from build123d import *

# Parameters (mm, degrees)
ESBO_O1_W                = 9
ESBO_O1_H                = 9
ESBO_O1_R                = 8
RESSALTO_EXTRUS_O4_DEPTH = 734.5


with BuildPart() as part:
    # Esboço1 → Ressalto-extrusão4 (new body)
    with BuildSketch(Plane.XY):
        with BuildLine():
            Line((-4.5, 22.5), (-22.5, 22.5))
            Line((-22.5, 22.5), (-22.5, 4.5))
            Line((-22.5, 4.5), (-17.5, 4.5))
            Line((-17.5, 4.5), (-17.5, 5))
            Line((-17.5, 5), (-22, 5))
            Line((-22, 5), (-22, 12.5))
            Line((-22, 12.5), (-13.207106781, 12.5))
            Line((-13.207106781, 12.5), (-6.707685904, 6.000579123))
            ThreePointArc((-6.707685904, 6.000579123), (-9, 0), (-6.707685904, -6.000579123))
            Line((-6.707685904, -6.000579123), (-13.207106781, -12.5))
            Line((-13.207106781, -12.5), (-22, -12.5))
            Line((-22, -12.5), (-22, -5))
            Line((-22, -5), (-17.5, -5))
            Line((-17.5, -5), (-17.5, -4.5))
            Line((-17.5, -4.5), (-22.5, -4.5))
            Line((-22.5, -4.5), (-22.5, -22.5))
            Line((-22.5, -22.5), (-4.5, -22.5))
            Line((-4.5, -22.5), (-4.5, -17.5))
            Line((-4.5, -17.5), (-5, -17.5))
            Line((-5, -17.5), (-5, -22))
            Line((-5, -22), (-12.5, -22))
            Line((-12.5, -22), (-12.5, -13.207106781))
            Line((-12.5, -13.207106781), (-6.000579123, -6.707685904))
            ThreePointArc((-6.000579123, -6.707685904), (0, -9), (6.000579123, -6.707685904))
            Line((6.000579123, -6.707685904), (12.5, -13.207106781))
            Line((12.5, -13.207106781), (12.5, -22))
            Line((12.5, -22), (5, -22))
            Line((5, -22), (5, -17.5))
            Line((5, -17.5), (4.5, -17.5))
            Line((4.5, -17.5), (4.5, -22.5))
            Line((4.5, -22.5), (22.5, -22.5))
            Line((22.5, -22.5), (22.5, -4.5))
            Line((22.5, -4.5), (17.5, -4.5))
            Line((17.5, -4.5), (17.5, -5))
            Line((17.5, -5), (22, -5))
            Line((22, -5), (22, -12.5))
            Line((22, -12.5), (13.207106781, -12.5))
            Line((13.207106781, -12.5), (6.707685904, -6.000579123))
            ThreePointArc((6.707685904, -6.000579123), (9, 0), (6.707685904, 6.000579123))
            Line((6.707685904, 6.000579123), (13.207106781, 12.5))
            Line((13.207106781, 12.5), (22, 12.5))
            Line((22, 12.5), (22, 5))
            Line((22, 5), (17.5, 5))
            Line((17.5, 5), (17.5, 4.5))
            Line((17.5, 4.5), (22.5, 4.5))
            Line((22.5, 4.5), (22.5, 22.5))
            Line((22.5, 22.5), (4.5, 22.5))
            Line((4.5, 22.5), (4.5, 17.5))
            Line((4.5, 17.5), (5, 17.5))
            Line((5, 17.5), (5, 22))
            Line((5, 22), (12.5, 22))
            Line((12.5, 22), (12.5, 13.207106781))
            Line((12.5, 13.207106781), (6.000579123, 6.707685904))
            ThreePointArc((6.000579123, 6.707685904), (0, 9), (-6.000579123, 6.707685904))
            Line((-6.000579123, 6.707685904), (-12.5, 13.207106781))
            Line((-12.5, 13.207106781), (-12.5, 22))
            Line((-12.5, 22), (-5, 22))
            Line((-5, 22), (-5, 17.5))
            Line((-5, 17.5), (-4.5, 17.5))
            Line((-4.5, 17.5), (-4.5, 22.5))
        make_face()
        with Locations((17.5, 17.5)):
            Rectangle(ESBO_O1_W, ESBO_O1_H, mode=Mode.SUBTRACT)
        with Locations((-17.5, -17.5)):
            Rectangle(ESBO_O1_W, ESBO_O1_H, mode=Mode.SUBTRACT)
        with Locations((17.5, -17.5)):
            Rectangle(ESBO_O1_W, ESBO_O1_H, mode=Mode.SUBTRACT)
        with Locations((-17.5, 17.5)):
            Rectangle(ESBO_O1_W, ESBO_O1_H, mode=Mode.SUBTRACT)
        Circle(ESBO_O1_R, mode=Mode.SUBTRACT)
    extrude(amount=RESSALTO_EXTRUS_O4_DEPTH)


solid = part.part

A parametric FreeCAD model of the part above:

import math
import FreeCAD as App
import Part
import Sketcher

V = App.Vector
Q = App.Units.Quantity


def add_polygon(sketch, points):
    """Adds a closed chain of lines whose ends are joined by coincident constraints."""
    first, n = sketch.GeometryCount, len(points)
    for a, b in zip(points, points[1:] + points[:1]):
        sketch.addGeometry(Part.LineSegment(App.Vector(*a, 0), App.Vector(*b, 0)), False)
    for i in range(n):
        sketch.addConstraint(Sketcher.Constraint("Coincident", first + i, 2, first + (i + 1) % n, 1))

doc = App.newDocument("Part")
params = doc.addObject("Spreadsheet::Sheet", "Params")
for row, (alias, value) in enumerate([
    ("sketch1_diameter", "16 mm"),
    ("sketch1_radius", "9 mm"),
    ("sketch1_width", "18 mm"),
    ("sketch1_width2", "5 mm"),
    ("sketch1_width3", "9 mm"),
    ("pad1_length", "734.5 mm"),
], start=1):
    params.set(f"A{row}", alias)
    params.set(f"B{row}", "=" + value)
    params.setAlias(f"B{row}", alias)

body = doc.addObject("PartDesign::Body", "Body")

sketch1 = doc.addObject("Sketcher::SketchObject", "Sketch")
body.addObject(sketch1)
sketch1.AttachmentSupport = (doc.XY_Plane, [""])
sketch1.MapMode = "FlatFace"
sketch1.addGeometry(Part.LineSegment(V(-4.5, 22.5, 0), V(-22.5, 22.5, 0)), False)
sketch1.addGeometry(Part.LineSegment(V(-22.5, 22.5, 0), V(-22.5, 4.5, 0)), False)
sketch1.addGeometry(Part.LineSegment(V(-22.5, 4.5, 0), V(-17.5, 4.5, 0)), False)
sketch1.addGeometry(Part.LineSegment(V(-17.5, 4.5, 0), V(-17.5, 5, 0)), False)
sketch1.addGeometry(Part.LineSegment(V(-17.5, 5, 0), V(-22, 5, 0)), False)
sketch1.addGeometry(Part.LineSegment(V(-22, 5, 0), V(-22, 12.5, 0)), False)
sketch1.addGeometry(Part.LineSegment(V(-22, 12.5, 0), V(-13.2, 12.5, 0)), False)
sketch1.addGeometry(Part.LineSegment(V(-13.2, 12.5, 0), V(-6.7, 6, 0)), False)
sketch1.addGeometry(Part.ArcOfCircle(Part.Circle(V(0, 0, 0), V(0, 0, 1), 9), math.radians(138), math.radians(222)), False)
sketch1.addGeometry(Part.LineSegment(V(-6.7, -6, 0), V(-13.2, -12.5, 0)), False)
sketch1.addGeometry(Part.LineSegment(V(-13.2, -12.5, 0), V(-22, -12.5, 0)), False)
sketch1.addGeometry(Part.LineSegment(V(-22, -12.5, 0), V(-22, -5, 0)), False)
sketch1.addGeometry(Part.LineSegment(V(-22, -5, 0), V(-17.5, -5, 0)), False)
sketch1.addGeometry(Part.LineSegment(V(-17.5, -5, 0), V(-17.5, -4.5, 0)), False)
sketch1.addGeometry(Part.LineSegment(V(-17.5, -4.5, 0), V(-22.5, -4.5, 0)), False)
sketch1.addGeometry(Part.LineSegment(V(-22.5, -4.5, 0), V(-22.5, -22.5, 0)), False)
sketch1.addGeometry(Part.LineSegment(V(-22.5, -22.5, 0), V(-4.5, -22.5, 0)), False)
sketch1.addGeometry(Part.LineSegment(V(-4.5, -22.5, 0), V(-4.5, -17.5, 0)), False)
sketch1.addGeometry(Part.LineSegment(V(-4.5, -17.5, 0), V(-5, -17.5, 0)), False)
sketch1.addGeometry(Part.LineSegment(V(-5, -17.5, 0), V(-5, -22, 0)), False)
sketch1.addGeometry(Part.LineSegment(V(-5, -22, 0), V(-12.5, -22, 0)), False)
sketch1.addGeometry(Part.LineSegment(V(-12.5, -22, 0), V(-12.5, -13.2, 0)), False)
sketch1.addGeometry(Part.LineSegment(V(-12.5, -13.2, 0), V(-6, -6.7, 0)), False)
sketch1.addGeometry(Part.ArcOfCircle(Part.Circle(V(0, 0, 0), V(0, 0, 1), 9), math.radians(-132), math.radians(-48)), False)
sketch1.addGeometry(Part.LineSegment(V(6, -6.7, 0), V(12.5, -13.2, 0)), False)
sketch1.addGeometry(Part.LineSegment(V(12.5, -13.2, 0), V(12.5, -22, 0)), False)
sketch1.addGeometry(Part.LineSegment(V(12.5, -22, 0), V(5, -22, 0)), False)
sketch1.addGeometry(Part.LineSegment(V(5, -22, 0), V(5, -17.5, 0)), False)
sketch1.addGeometry(Part.LineSegment(V(5, -17.5, 0), V(4.5, -17.5, 0)), False)
sketch1.addGeometry(Part.LineSegment(V(4.5, -17.5, 0), V(4.5, -22.5, 0)), False)
sketch1.addGeometry(Part.LineSegment(V(4.5, -22.5, 0), V(22.5, -22.5, 0)), False)
sketch1.addGeometry(Part.LineSegment(V(22.5, -22.5, 0), V(22.5, -4.5, 0)), False)
sketch1.addGeometry(Part.LineSegment(V(22.5, -4.5, 0), V(17.5, -4.5, 0)), False)
sketch1.addGeometry(Part.LineSegment(V(17.5, -4.5, 0), V(17.5, -5, 0)), False)
sketch1.addGeometry(Part.LineSegment(V(17.5, -5, 0), V(22, -5, 0)), False)
sketch1.addGeometry(Part.LineSegment(V(22, -5, 0), V(22, -12.5, 0)), False)
sketch1.addGeometry(Part.LineSegment(V(22, -12.5, 0), V(13.2, -12.5, 0)), False)
sketch1.addGeometry(Part.LineSegment(V(13.2, -12.5, 0), V(6.7, -6, 0)), False)
sketch1.addGeometry(Part.ArcOfCircle(Part.Circle(V(0, 0, 0), V(0, 0, 1), 9), math.radians(-42), math.radians(42)), False)
sketch1.addGeometry(Part.LineSegment(V(6.7, 6, 0), V(13.2, 12.5, 0)), False)
sketch1.addGeometry(Part.LineSegment(V(13.2, 12.5, 0), V(22, 12.5, 0)), False)
sketch1.addGeometry(Part.LineSegment(V(22, 12.5, 0), V(22, 5, 0)), False)
sketch1.addGeometry(Part.LineSegment(V(22, 5, 0), V(17.5, 5, 0)), False)
sketch1.addGeometry(Part.LineSegment(V(17.5, 5, 0), V(17.5, 4.5, 0)), False)
sketch1.addGeometry(Part.LineSegment(V(17.5, 4.5, 0), V(22.5, 4.5, 0)), False)
sketch1.addGeometry(Part.LineSegment(V(22.5, 4.5, 0), V(22.5, 22.5, 0)), False)
sketch1.addGeometry(Part.LineSegment(V(22.5, 22.5, 0), V(4.5, 22.5, 0)), False)
sketch1.addGeometry(Part.LineSegment(V(4.5, 22.5, 0), V(4.5, 17.5, 0)), False)
sketch1.addGeometry(Part.LineSegment(V(4.5, 17.5, 0), V(5, 17.5, 0)), False)
sketch1.addGeometry(Part.LineSegment(V(5, 17.5, 0), V(5, 22, 0)), False)
sketch1.addGeometry(Part.LineSegment(V(5, 22, 0), V(12.5, 22, 0)), False)
sketch1.addGeometry(Part.LineSegment(V(12.5, 22, 0), V(12.5, 13.2, 0)), False)
sketch1.addGeometry(Part.LineSegment(V(12.5, 13.2, 0), V(6, 6.7, 0)), False)
sketch1.addGeometry(Part.ArcOfCircle(Part.Circle(V(0, 0, 0), V(0, 0, 1), 9), math.radians(48), math.radians(132)), False)
sketch1.addGeometry(Part.LineSegment(V(-6, 6.7, 0), V(-12.5, 13.2, 0)), False)
sketch1.addGeometry(Part.LineSegment(V(-12.5, 13.2, 0), V(-12.5, 22, 0)), False)
sketch1.addGeometry(Part.LineSegment(V(-12.5, 22, 0), V(-5, 22, 0)), False)
sketch1.addGeometry(Part.LineSegment(V(-5, 22, 0), V(-5, 17.5, 0)), False)
sketch1.addGeometry(Part.LineSegment(V(-5, 17.5, 0), V(-4.5, 17.5, 0)), False)
sketch1.addGeometry(Part.LineSegment(V(-4.5, 17.5, 0), V(-4.5, 22.5, 0)), False)
add_polygon(sketch1, [(-13, -22), (-22, -22), (-22, -13), (-13, -13)])
add_polygon(sketch1, [(22, -22), (13, -22), (13, -13), (22, -13)])
add_polygon(sketch1, [(-13, 13), (-22, 13), (-22, 22), (-13, 22)])
sketch1.addGeometry(Part.Circle(V(0, 0, 0), V(0, 0, 1), 8), False)
add_polygon(sketch1, [(22, 13), (13, 13), (13, 22), (22, 22)])
sketch1.addConstraint(Sketcher.Constraint("Coincident", 0, 2, 1, 1))
sketch1.addConstraint(Sketcher.Constraint("Coincident", 1, 2, 2, 1))
sketch1.addConstraint(Sketcher.Constraint("Coincident", 2, 2, 3, 1))
sketch1.addConstraint(Sketcher.Constraint("Coincident", 3, 2, 4, 1))
sketch1.addConstraint(Sketcher.Constraint("Coincident", 4, 2, 5, 1))
sketch1.addConstraint(Sketcher.Constraint("Coincident", 5, 2, 6, 1))
sketch1.addConstraint(Sketcher.Constraint("Coincident", 6, 2, 7, 1))
sketch1.addConstraint(Sketcher.Constraint("Coincident", 7, 2, 8, 1))
sketch1.addConstraint(Sketcher.Constraint("Coincident", 8, 2, 9, 1))
sketch1.addConstraint(Sketcher.Constraint("Coincident", 9, 2, 10, 1))
sketch1.addConstraint(Sketcher.Constraint("Coincident", 10, 2, 11, 1))
sketch1.addConstraint(Sketcher.Constraint("Coincident", 11, 2, 12, 1))
sketch1.addConstraint(Sketcher.Constraint("Coincident", 12, 2, 13, 1))
sketch1.addConstraint(Sketcher.Constraint("Coincident", 13, 2, 14, 1))
sketch1.addConstraint(Sketcher.Constraint("Coincident", 14, 2, 15, 1))
sketch1.addConstraint(Sketcher.Constraint("Coincident", 15, 2, 16, 1))
sketch1.addConstraint(Sketcher.Constraint("Coincident", 16, 2, 17, 1))
sketch1.addConstraint(Sketcher.Constraint("Coincident", 17, 2, 18, 1))
sketch1.addConstraint(Sketcher.Constraint("Coincident", 18, 2, 19, 1))
sketch1.addConstraint(Sketcher.Constraint("Coincident", 19, 2, 20, 1))
sketch1.addConstraint(Sketcher.Constraint("Coincident", 20, 2, 21, 1))
sketch1.addConstraint(Sketcher.Constraint("Coincident", 21, 2, 22, 1))
sketch1.addConstraint(Sketcher.Constraint("Coincident", 22, 2, 23, 1))
sketch1.addConstraint(Sketcher.Constraint("Coincident", 23, 2, 24, 1))
sketch1.addConstraint(Sketcher.Constraint("Coincident", 24, 2, 25, 1))
sketch1.addConstraint(Sketcher.Constraint("Coincident", 25, 2, 26, 1))
sketch1.addConstraint(Sketcher.Constraint("Coincident", 26, 2, 27, 1))
sketch1.addConstraint(Sketcher.Constraint("Coincident", 27, 2, 28, 1))
sketch1.addConstraint(Sketcher.Constraint("Coincident", 28, 2, 29, 1))
sketch1.addConstraint(Sketcher.Constraint("Coincident", 29, 2, 30, 1))
sketch1.addConstraint(Sketcher.Constraint("Coincident", 30, 2, 31, 1))
sketch1.addConstraint(Sketcher.Constraint("Coincident", 31, 2, 32, 1))
sketch1.addConstraint(Sketcher.Constraint("Coincident", 32, 2, 33, 1))
sketch1.addConstraint(Sketcher.Constraint("Coincident", 33, 2, 34, 1))
sketch1.addConstraint(Sketcher.Constraint("Coincident", 34, 2, 35, 1))
sketch1.addConstraint(Sketcher.Constraint("Coincident", 35, 2, 36, 1))
sketch1.addConstraint(Sketcher.Constraint("Coincident", 36, 2, 37, 1))
sketch1.addConstraint(Sketcher.Constraint("Coincident", 37, 2, 38, 1))
sketch1.addConstraint(Sketcher.Constraint("Coincident", 38, 2, 39, 1))
sketch1.addConstraint(Sketcher.Constraint("Coincident", 39, 2, 40, 1))
sketch1.addConstraint(Sketcher.Constraint("Coincident", 40, 2, 41, 1))
sketch1.addConstraint(Sketcher.Constraint("Coincident", 41, 2, 42, 1))
sketch1.addConstraint(Sketcher.Constraint("Coincident", 42, 2, 43, 1))
sketch1.addConstraint(Sketcher.Constraint("Coincident", 43, 2, 44, 1))
sketch1.addConstraint(Sketcher.Constraint("Coincident", 44, 2, 45, 1))
sketch1.addConstraint(Sketcher.Constraint("Coincident", 45, 2, 46, 1))
sketch1.addConstraint(Sketcher.Constraint("Coincident", 46, 2, 47, 1))
sketch1.addConstraint(Sketcher.Constraint("Coincident", 47, 2, 48, 1))
sketch1.addConstraint(Sketcher.Constraint("Coincident", 48, 2, 49, 1))
sketch1.addConstraint(Sketcher.Constraint("Coincident", 49, 2, 50, 1))
sketch1.addConstraint(Sketcher.Constraint("Coincident", 50, 2, 51, 1))
sketch1.addConstraint(Sketcher.Constraint("Coincident", 51, 2, 52, 1))
sketch1.addConstraint(Sketcher.Constraint("Coincident", 52, 2, 53, 1))
sketch1.addConstraint(Sketcher.Constraint("Coincident", 53, 2, 54, 1))
sketch1.addConstraint(Sketcher.Constraint("Coincident", 54, 2, 55, 1))
sketch1.addConstraint(Sketcher.Constraint("Coincident", 55, 2, 56, 1))
sketch1.addConstraint(Sketcher.Constraint("Coincident", 56, 2, 57, 1))
sketch1.addConstraint(Sketcher.Constraint("Coincident", 57, 2, 58, 1))
sketch1.addConstraint(Sketcher.Constraint("Coincident", 58, 2, 59, 1))
sketch1.addConstraint(Sketcher.Constraint("Coincident", 59, 2, 0, 1))
sketch1.addConstraint(Sketcher.Constraint("Horizontal", 0))
sketch1.addConstraint(Sketcher.Constraint("Vertical", 1))
sketch1.addConstraint(Sketcher.Constraint("Horizontal", 2))
sketch1.addConstraint(Sketcher.Constraint("Vertical", 3))
sketch1.addConstraint(Sketcher.Constraint("Horizontal", 4))
sketch1.addConstraint(Sketcher.Constraint("Vertical", 5))
sketch1.addConstraint(Sketcher.Constraint("Horizontal", 6))
sketch1.addConstraint(Sketcher.Constraint("Horizontal", 10))
sketch1.addConstraint(Sketcher.Constraint("Vertical", 11))
sketch1.addConstraint(Sketcher.Constraint("Horizontal", 12))
sketch1.addConstraint(Sketcher.Constraint("Vertical", 13))
sketch1.addConstraint(Sketcher.Constraint("Horizontal", 14))
sketch1.addConstraint(Sketcher.Constraint("Vertical", 15))
sketch1.addConstraint(Sketcher.Constraint("Horizontal", 16))
sketch1.addConstraint(Sketcher.Constraint("Vertical", 17))
sketch1.addConstraint(Sketcher.Constraint("Horizontal", 18))
sketch1.addConstraint(Sketcher.Constraint("Vertical", 19))
sketch1.addConstraint(Sketcher.Constraint("Horizontal", 20))
sketch1.addConstraint(Sketcher.Constraint("Vertical", 21))
sketch1.addConstraint(Sketcher.Constraint("Vertical", 25))
sketch1.addConstraint(Sketcher.Constraint("Horizontal", 26))
sketch1.addConstraint(Sketcher.Constraint("Vertical", 27))
sketch1.addConstraint(Sketcher.Constraint("Horizontal", 28))
sketch1.addConstraint(Sketcher.Constraint("Vertical", 29))
sketch1.addConstraint(Sketcher.Constraint("Horizontal", 30))
sketch1.addConstraint(Sketcher.Constraint("Vertical", 31))
sketch1.addConstraint(Sketcher.Constraint("Horizontal", 32))
sketch1.addConstraint(Sketcher.Constraint("Vertical", 33))
sketch1.addConstraint(Sketcher.Constraint("Horizontal", 34))
sketch1.addConstraint(Sketcher.Constraint("Vertical", 35))
sketch1.addConstraint(Sketcher.Constraint("Horizontal", 36))
sketch1.addConstraint(Sketcher.Constraint("Horizontal", 40))
sketch1.addConstraint(Sketcher.Constraint("Vertical", 41))
sketch1.addConstraint(Sketcher.Constraint("Horizontal", 42))
sketch1.addConstraint(Sketcher.Constraint("Vertical", 43))
sketch1.addConstraint(Sketcher.Constraint("Horizontal", 44))
sketch1.addConstraint(Sketcher.Constraint("Vertical", 45))
sketch1.addConstraint(Sketcher.Constraint("Horizontal", 46))
sketch1.addConstraint(Sketcher.Constraint("Vertical", 47))
sketch1.addConstraint(Sketcher.Constraint("Horizontal", 48))
sketch1.addConstraint(Sketcher.Constraint("Vertical", 49))
sketch1.addConstraint(Sketcher.Constraint("Horizontal", 50))
sketch1.addConstraint(Sketcher.Constraint("Vertical", 51))
sketch1.addConstraint(Sketcher.Constraint("Vertical", 55))
sketch1.addConstraint(Sketcher.Constraint("Horizontal", 56))
sketch1.addConstraint(Sketcher.Constraint("Vertical", 57))
sketch1.addConstraint(Sketcher.Constraint("Horizontal", 58))
sketch1.addConstraint(Sketcher.Constraint("Vertical", 59))
sketch1.addConstraint(Sketcher.Constraint("Horizontal", 60))
sketch1.addConstraint(Sketcher.Constraint("Vertical", 61))
sketch1.addConstraint(Sketcher.Constraint("Horizontal", 62))
sketch1.addConstraint(Sketcher.Constraint("Vertical", 63))
sketch1.addConstraint(Sketcher.Constraint("Horizontal", 64))
sketch1.addConstraint(Sketcher.Constraint("Vertical", 65))
sketch1.addConstraint(Sketcher.Constraint("Horizontal", 66))
sketch1.addConstraint(Sketcher.Constraint("Vertical", 67))
sketch1.addConstraint(Sketcher.Constraint("Horizontal", 68))
sketch1.addConstraint(Sketcher.Constraint("Vertical", 69))
sketch1.addConstraint(Sketcher.Constraint("Horizontal", 70))
sketch1.addConstraint(Sketcher.Constraint("Vertical", 71))
sketch1.addConstraint(Sketcher.Constraint("Horizontal", 73))
sketch1.addConstraint(Sketcher.Constraint("Vertical", 74))
sketch1.addConstraint(Sketcher.Constraint("Horizontal", 75))
sketch1.addConstraint(Sketcher.Constraint("Vertical", 76))
sketch1.addConstraint(Sketcher.Constraint("Coincident", 8, 3, -1, 1))
sketch1.addConstraint(Sketcher.Constraint("Coincident", 23, 3, -1, 1))
sketch1.addConstraint(Sketcher.Constraint("Coincident", 38, 3, -1, 1))
sketch1.addConstraint(Sketcher.Constraint("Coincident", 53, 3, -1, 1))
sketch1.addConstraint(Sketcher.Constraint("Coincident", 72, 3, -1, 1))
sketch1.addConstraint(Sketcher.Constraint("Equal", 8, 23))
sketch1.addConstraint(Sketcher.Constraint("Equal", 23, 38))
sketch1.addConstraint(Sketcher.Constraint("Equal", 38, 53))
sketch1.addConstraint(Sketcher.Constraint("Symmetric", 0, 2, 30, 2, -1, 1))
sketch1.addConstraint(Sketcher.Constraint("Symmetric", 2, 2, 32, 2, -1, 1))
sketch1.addConstraint(Sketcher.Constraint("Symmetric", 4, 2, 34, 2, -1, 1))
sketch1.addConstraint(Sketcher.Constraint("Symmetric", 6, 2, 36, 2, -1, 1))
sketch1.addConstraint(Sketcher.Constraint("Symmetric", 9, 2, 39, 2, -1, 1))
sketch1.addConstraint(Sketcher.Constraint("Symmetric", 11, 2, 41, 2, -1, 1))
sketch1.addConstraint(Sketcher.Constraint("Symmetric", 13, 2, 43, 2, -1, 1))
sketch1.addConstraint(Sketcher.Constraint("Symmetric", 15, 2, 45, 2, -1, 1))
sketch1.addConstraint(Sketcher.Constraint("Symmetric", 17, 2, 47, 2, -1, 1))
sketch1.addConstraint(Sketcher.Constraint("Symmetric", 19, 2, 49, 2, -1, 1))
sketch1.addConstraint(Sketcher.Constraint("Symmetric", 21, 2, 51, 2, -1, 1))
sketch1.addConstraint(Sketcher.Constraint("Symmetric", 24, 2, 54, 2, -1, 1))
sketch1.addConstraint(Sketcher.Constraint("Symmetric", 26, 2, 56, 2, -1, 1))
sketch1.addConstraint(Sketcher.Constraint("Symmetric", 28, 2, 58, 2, -1, 1))
sketch1.addConstraint(Sketcher.Constraint("Symmetric", 66, 2, 68, 2, -1, 1))
sketch1.addConstraint(Sketcher.Constraint("Symmetric", 64, 2, 70, 2, -1, 1))
sketch1.addConstraint(Sketcher.Constraint("Symmetric", 62, 2, 73, 2, -1, 1))
sketch1.addConstraint(Sketcher.Constraint("Symmetric", 60, 2, 75, 2, -1, 1))
sketch1.addConstraint(Sketcher.Constraint("Symmetric", 21, 2, 24, 2, -2))
sketch1.addConstraint(Sketcher.Constraint("Symmetric", 19, 2, 26, 2, -2))
sketch1.addConstraint(Sketcher.Constraint("Symmetric", 17, 2, 28, 2, -2))
sketch1.addConstraint(Sketcher.Constraint("Symmetric", 15, 2, 30, 2, -2))
sketch1.addConstraint(Sketcher.Constraint("Symmetric", 13, 2, 32, 2, -2))
sketch1.addConstraint(Sketcher.Constraint("Symmetric", 11, 2, 34, 2, -2))
sketch1.addConstraint(Sketcher.Constraint("Symmetric", 9, 2, 36, 2, -2))
sketch1.addConstraint(Sketcher.Constraint("Symmetric", 63, 2, 64, 2, -2))
sketch1.addConstraint(Sketcher.Constraint("Symmetric", 61, 2, 66, 2, -2))
sketch1.addConstraint(Sketcher.Constraint("Perpendicular", 7, 9))
sketch1.addConstraint(Sketcher.Constraint("Parallel", 9, 22))
sketch1.addConstraint(Sketcher.Constraint("Perpendicular", 22, 24))
sketch1.addConstraint(Sketcher.Constraint("Parallel", 24, 37))
sketch1.addConstraint(Sketcher.Constraint("Perpendicular", 37, 39))
sketch1.addConstraint(Sketcher.Constraint("Parallel", 39, 52))
sketch1.addConstraint(Sketcher.Constraint("Perpendicular", 52, 54))
sketch1.addConstraint(Sketcher.Constraint("Horizontal", 22, 2, 23, 2))
sketch1.addConstraint(Sketcher.Constraint("Horizontal", 26, 2, 60, 2))
sketch1.addConstraint(Sketcher.Constraint("Vertical", 11, 2, 60, 2))
sketch1.addConstraint(Sketcher.Constraint("Equal", 46, 1))
sketch1.addConstraint(Sketcher.Constraint("Equal", 58, 3))
sketch1.addConstraint(Sketcher.Constraint("Equal", 56, 5))
sketch1.addConstraint(Sketcher.Constraint("Equal", 44, 17))
sketch1.addConstraint(Sketcher.Constraint("Equal", 42, 19))
sketch1.addConstraint(Sketcher.Constraint("Equal", 40, 21))
sketch1.addConstraint(Sketcher.Constraint("Equal", 75, 61))
sketch1.addConstraint(Sketcher.Constraint("Equal", 9, 22))
sketch1.addConstraint(Sketcher.Constraint("Diameter", 72, Q("16 mm")))
sketch1.addConstraint(Sketcher.Constraint("Radius", 8, Q("9 mm")))
sketch1.addConstraint(Sketcher.Constraint("DistanceX", 0, 2, 0, 1, Q("18 mm")))
sketch1.addConstraint(Sketcher.Constraint("DistanceX", 2, 1, 2, 2, Q("5 mm")))
sketch1.addConstraint(Sketcher.Constraint("DistanceX", 60, 2, 60, 1, Q("9 mm")))
sketch1.addConstraint(Sketcher.Constraint("DistanceX", 4, 2, 4, 1, Q("4.5 mm")))
sketch1.addConstraint(Sketcher.Constraint("DistanceX", 18, 2, 18, 1, Q("0.5 mm")))
sketch1.addConstraint(Sketcher.Constraint("DistanceX", 20, 2, 20, 1, Q("7.5 mm")))
sketch1.addConstraint(Sketcher.Constraint("DistanceY", -1, 1, 3, 2, Q("5 mm")))
sketch1.addConstraint(Sketcher.Constraint("Distance", 7, Q("9.191569 mm")))
sketch1.setExpression("Constraints[193]", "Params.sketch1_diameter")
sketch1.setExpression("Constraints[194]", "Params.sketch1_radius")
sketch1.setExpression("Constraints[195]", "Params.sketch1_width")
sketch1.setExpression("Constraints[196]", "Params.sketch1_width2")
sketch1.setExpression("Constraints[197]", "Params.sketch1_width3")
pad1 = doc.addObject("PartDesign::Pad", "Pad")
body.addObject(pad1)
pad1.Profile = sketch1
pad1.setExpression("Length", "Params.pad1_length")

doc.recompute()
